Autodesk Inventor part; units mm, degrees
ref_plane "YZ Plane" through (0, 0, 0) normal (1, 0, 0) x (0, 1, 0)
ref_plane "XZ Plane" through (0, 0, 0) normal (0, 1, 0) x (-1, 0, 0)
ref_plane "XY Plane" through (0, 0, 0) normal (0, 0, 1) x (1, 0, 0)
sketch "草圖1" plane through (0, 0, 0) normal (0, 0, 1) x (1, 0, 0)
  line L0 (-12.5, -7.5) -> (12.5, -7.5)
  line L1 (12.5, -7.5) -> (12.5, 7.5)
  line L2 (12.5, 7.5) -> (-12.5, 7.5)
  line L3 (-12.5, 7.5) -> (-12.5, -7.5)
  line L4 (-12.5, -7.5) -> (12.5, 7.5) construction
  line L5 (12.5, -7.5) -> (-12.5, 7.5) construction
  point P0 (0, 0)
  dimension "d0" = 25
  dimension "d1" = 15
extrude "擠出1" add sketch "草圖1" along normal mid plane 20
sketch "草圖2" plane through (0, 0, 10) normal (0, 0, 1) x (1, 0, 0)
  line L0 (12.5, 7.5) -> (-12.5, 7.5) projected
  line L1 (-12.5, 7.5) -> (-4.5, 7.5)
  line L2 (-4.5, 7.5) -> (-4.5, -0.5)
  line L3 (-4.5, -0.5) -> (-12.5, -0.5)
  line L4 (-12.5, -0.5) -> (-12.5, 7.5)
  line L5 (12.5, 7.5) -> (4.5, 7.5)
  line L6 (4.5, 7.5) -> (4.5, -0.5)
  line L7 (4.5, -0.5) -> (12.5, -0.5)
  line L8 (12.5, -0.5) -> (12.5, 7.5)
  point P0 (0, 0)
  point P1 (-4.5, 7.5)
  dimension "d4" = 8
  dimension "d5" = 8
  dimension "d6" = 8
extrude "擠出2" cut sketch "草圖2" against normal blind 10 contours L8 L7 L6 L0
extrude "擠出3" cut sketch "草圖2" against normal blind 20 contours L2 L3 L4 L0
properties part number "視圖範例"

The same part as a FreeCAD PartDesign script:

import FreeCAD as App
import Part
import Sketcher
from FreeCAD import Vector

doc = App.newDocument("Part")
params = doc.addObject("Spreadsheet::Sheet", "Params")
for row, (alias, value) in enumerate([
    ("sketch1_width", "25 mm"),
    ("sketch1_height", "15 mm"),
    ("pad1_length", "20 mm"),
    ("sketch2_width", "8 mm"),
    ("pocket1_length", "10 mm"),
    ("sketch3_width", "8 mm"),
    ("pocket2_length", "20 mm"),
], start=1):
    params.set(f"A{row}", alias)
    params.set(f"B{row}", "=" + value)
    params.setAlias(f"B{row}", alias)

body = doc.addObject("PartDesign::Body", "Body")

# Sketch on XY plane
sketch1 = doc.addObject("Sketcher::SketchObject", "Sketch")
body.addObject(sketch1)
sketch1.AttachmentSupport = (doc.XY_Plane, [""])
sketch1.MapMode = "FlatFace"
sketch1.addGeometry([
    Part.LineSegment(Vector(-12, 8, 0), Vector(-12, -8, 0)),
    Part.LineSegment(Vector(-12, -8, 0), Vector(12, -8, 0)),
    Part.LineSegment(Vector(12, -8, 0), Vector(12, 8, 0)),
    Part.LineSegment(Vector(12, 8, 0), Vector(-12, 8, 0)),
], False)
sketch1.addConstraint([
    Sketcher.Constraint("Coincident", 0, 2, 1, 1),
    Sketcher.Constraint("Coincident", 1, 2, 2, 1),
    Sketcher.Constraint("Coincident", 2, 2, 3, 1),
    Sketcher.Constraint("Coincident", 3, 2, 0, 1),
    Sketcher.Constraint("Vertical", 0),
    Sketcher.Constraint("Horizontal", 1),
    Sketcher.Constraint("Vertical", 2),
    Sketcher.Constraint("Horizontal", 3),
    Sketcher.Constraint("Symmetric", 0, 2, 2, 2, -1, 1),
    Sketcher.Constraint("DistanceX", 1, 1, 1, 2, 25.0),
    Sketcher.Constraint("DistanceY", 0, 2, 0, 1, 15.0),
])
sketch1.setExpression("Constraints[9]", "Params.sketch1_width")
sketch1.setExpression("Constraints[10]", "Params.sketch1_height")
pad1 = doc.addObject("PartDesign::Pad", "Pad")
body.addObject(pad1)
pad1.Profile = sketch1
pad1.setExpression("Length", "Params.pad1_length")
pad1.Midplane = True

# Sketch on XY plane
sketch2 = doc.addObject("Sketcher::SketchObject", "Sketch001")
body.addObject(sketch2)
sketch2.AttachmentSupport = (doc.XY_Plane, [""])
sketch2.MapMode = "FlatFace"
sketch2.AttachmentOffset = App.Placement(Vector(0, 0, 10), App.Rotation())
sketch2.addGeometry([
    Part.LineSegment(Vector(12, 0, 0), Vector(12, 8, 0)),
    Part.LineSegment(Vector(12, 8, 0), Vector(4, 8, 0)),
    Part.LineSegment(Vector(4, 8, 0), Vector(4, 0, 0)),
    Part.LineSegment(Vector(4, 0, 0), Vector(12, 0, 0)),
], False)
sketch2.addConstraint([
    Sketcher.Constraint("Coincident", 0, 2, 1, 1),
    Sketcher.Constraint("Coincident", 1, 2, 2, 1),
    Sketcher.Constraint("Coincident", 2, 2, 3, 1),
    Sketcher.Constraint("Coincident", 3, 2, 0, 1),
    Sketcher.Constraint("Vertical", 0),
    Sketcher.Constraint("Horizontal", 1),
    Sketcher.Constraint("Vertical", 2),
    Sketcher.Constraint("Horizontal", 3),
    Sketcher.Constraint("Equal", 3, 0),
    Sketcher.Constraint("DistanceX", 1, 2, 1, 1, 8.0),
    Sketcher.Constraint("DistanceX", -1, 1, 0, 2, 12.5),
    Sketcher.Constraint("DistanceY", -1, 1, 0, 2, 7.5),
])
sketch2.setExpression("Constraints[9]", "Params.sketch2_width")
pocket1 = doc.addObject("PartDesign::Pocket", "Pocket")
body.addObject(pocket1)
pocket1.Profile = sketch2
pocket1.setExpression("Length", "Params.pocket1_length")

# Sketch on XY plane
sketch3 = doc.addObject("Sketcher::SketchObject", "Sketch002")
body.addObject(sketch3)
sketch3.AttachmentSupport = (doc.XY_Plane, [""])
sketch3.MapMode = "FlatFace"
sketch3.AttachmentOffset = App.Placement(Vector(0, 0, 10), App.Rotation())
sketch3.addGeometry([
    Part.LineSegment(Vector(-4, 0, 0), Vector(-4, 8, 0)),
    Part.LineSegment(Vector(-4, 8, 0), Vector(-12, 8, 0)),
    Part.LineSegment(Vector(-12, 8, 0), Vector(-12, 0, 0)),
    Part.LineSegment(Vector(-12, 0, 0), Vector(-4, 0, 0)),
], False)
sketch3.addConstraint([
    Sketcher.Constraint("Coincident", 0, 2, 1, 1),
    Sketcher.Constraint("Coincident", 1, 2, 2, 1),
    Sketcher.Constraint("Coincident", 2, 2, 3, 1),
    Sketcher.Constraint("Coincident", 3, 2, 0, 1),
    Sketcher.Constraint("Vertical", 0),
    Sketcher.Constraint("Horizontal", 1),
    Sketcher.Constraint("Vertical", 2),
    Sketcher.Constraint("Horizontal", 3),
    Sketcher.Constraint("Equal", 3, 0),
    Sketcher.Constraint("DistanceX", 1, 2, 1, 1, 8.0),
    Sketcher.Constraint("DistanceX", 0, 2, -1, 1, 4.5),
    Sketcher.Constraint("DistanceY", -1, 1, 0, 2, 7.5),
])
sketch3.setExpression("Constraints[9]", "Params.sketch3_width")
pocket2 = doc.addObject("PartDesign::Pocket", "Pocket001")
body.addObject(pocket2)
pocket2.Profile = sketch3
pocket2.setExpression("Length", "Params.pocket2_length")

doc.recompute()
